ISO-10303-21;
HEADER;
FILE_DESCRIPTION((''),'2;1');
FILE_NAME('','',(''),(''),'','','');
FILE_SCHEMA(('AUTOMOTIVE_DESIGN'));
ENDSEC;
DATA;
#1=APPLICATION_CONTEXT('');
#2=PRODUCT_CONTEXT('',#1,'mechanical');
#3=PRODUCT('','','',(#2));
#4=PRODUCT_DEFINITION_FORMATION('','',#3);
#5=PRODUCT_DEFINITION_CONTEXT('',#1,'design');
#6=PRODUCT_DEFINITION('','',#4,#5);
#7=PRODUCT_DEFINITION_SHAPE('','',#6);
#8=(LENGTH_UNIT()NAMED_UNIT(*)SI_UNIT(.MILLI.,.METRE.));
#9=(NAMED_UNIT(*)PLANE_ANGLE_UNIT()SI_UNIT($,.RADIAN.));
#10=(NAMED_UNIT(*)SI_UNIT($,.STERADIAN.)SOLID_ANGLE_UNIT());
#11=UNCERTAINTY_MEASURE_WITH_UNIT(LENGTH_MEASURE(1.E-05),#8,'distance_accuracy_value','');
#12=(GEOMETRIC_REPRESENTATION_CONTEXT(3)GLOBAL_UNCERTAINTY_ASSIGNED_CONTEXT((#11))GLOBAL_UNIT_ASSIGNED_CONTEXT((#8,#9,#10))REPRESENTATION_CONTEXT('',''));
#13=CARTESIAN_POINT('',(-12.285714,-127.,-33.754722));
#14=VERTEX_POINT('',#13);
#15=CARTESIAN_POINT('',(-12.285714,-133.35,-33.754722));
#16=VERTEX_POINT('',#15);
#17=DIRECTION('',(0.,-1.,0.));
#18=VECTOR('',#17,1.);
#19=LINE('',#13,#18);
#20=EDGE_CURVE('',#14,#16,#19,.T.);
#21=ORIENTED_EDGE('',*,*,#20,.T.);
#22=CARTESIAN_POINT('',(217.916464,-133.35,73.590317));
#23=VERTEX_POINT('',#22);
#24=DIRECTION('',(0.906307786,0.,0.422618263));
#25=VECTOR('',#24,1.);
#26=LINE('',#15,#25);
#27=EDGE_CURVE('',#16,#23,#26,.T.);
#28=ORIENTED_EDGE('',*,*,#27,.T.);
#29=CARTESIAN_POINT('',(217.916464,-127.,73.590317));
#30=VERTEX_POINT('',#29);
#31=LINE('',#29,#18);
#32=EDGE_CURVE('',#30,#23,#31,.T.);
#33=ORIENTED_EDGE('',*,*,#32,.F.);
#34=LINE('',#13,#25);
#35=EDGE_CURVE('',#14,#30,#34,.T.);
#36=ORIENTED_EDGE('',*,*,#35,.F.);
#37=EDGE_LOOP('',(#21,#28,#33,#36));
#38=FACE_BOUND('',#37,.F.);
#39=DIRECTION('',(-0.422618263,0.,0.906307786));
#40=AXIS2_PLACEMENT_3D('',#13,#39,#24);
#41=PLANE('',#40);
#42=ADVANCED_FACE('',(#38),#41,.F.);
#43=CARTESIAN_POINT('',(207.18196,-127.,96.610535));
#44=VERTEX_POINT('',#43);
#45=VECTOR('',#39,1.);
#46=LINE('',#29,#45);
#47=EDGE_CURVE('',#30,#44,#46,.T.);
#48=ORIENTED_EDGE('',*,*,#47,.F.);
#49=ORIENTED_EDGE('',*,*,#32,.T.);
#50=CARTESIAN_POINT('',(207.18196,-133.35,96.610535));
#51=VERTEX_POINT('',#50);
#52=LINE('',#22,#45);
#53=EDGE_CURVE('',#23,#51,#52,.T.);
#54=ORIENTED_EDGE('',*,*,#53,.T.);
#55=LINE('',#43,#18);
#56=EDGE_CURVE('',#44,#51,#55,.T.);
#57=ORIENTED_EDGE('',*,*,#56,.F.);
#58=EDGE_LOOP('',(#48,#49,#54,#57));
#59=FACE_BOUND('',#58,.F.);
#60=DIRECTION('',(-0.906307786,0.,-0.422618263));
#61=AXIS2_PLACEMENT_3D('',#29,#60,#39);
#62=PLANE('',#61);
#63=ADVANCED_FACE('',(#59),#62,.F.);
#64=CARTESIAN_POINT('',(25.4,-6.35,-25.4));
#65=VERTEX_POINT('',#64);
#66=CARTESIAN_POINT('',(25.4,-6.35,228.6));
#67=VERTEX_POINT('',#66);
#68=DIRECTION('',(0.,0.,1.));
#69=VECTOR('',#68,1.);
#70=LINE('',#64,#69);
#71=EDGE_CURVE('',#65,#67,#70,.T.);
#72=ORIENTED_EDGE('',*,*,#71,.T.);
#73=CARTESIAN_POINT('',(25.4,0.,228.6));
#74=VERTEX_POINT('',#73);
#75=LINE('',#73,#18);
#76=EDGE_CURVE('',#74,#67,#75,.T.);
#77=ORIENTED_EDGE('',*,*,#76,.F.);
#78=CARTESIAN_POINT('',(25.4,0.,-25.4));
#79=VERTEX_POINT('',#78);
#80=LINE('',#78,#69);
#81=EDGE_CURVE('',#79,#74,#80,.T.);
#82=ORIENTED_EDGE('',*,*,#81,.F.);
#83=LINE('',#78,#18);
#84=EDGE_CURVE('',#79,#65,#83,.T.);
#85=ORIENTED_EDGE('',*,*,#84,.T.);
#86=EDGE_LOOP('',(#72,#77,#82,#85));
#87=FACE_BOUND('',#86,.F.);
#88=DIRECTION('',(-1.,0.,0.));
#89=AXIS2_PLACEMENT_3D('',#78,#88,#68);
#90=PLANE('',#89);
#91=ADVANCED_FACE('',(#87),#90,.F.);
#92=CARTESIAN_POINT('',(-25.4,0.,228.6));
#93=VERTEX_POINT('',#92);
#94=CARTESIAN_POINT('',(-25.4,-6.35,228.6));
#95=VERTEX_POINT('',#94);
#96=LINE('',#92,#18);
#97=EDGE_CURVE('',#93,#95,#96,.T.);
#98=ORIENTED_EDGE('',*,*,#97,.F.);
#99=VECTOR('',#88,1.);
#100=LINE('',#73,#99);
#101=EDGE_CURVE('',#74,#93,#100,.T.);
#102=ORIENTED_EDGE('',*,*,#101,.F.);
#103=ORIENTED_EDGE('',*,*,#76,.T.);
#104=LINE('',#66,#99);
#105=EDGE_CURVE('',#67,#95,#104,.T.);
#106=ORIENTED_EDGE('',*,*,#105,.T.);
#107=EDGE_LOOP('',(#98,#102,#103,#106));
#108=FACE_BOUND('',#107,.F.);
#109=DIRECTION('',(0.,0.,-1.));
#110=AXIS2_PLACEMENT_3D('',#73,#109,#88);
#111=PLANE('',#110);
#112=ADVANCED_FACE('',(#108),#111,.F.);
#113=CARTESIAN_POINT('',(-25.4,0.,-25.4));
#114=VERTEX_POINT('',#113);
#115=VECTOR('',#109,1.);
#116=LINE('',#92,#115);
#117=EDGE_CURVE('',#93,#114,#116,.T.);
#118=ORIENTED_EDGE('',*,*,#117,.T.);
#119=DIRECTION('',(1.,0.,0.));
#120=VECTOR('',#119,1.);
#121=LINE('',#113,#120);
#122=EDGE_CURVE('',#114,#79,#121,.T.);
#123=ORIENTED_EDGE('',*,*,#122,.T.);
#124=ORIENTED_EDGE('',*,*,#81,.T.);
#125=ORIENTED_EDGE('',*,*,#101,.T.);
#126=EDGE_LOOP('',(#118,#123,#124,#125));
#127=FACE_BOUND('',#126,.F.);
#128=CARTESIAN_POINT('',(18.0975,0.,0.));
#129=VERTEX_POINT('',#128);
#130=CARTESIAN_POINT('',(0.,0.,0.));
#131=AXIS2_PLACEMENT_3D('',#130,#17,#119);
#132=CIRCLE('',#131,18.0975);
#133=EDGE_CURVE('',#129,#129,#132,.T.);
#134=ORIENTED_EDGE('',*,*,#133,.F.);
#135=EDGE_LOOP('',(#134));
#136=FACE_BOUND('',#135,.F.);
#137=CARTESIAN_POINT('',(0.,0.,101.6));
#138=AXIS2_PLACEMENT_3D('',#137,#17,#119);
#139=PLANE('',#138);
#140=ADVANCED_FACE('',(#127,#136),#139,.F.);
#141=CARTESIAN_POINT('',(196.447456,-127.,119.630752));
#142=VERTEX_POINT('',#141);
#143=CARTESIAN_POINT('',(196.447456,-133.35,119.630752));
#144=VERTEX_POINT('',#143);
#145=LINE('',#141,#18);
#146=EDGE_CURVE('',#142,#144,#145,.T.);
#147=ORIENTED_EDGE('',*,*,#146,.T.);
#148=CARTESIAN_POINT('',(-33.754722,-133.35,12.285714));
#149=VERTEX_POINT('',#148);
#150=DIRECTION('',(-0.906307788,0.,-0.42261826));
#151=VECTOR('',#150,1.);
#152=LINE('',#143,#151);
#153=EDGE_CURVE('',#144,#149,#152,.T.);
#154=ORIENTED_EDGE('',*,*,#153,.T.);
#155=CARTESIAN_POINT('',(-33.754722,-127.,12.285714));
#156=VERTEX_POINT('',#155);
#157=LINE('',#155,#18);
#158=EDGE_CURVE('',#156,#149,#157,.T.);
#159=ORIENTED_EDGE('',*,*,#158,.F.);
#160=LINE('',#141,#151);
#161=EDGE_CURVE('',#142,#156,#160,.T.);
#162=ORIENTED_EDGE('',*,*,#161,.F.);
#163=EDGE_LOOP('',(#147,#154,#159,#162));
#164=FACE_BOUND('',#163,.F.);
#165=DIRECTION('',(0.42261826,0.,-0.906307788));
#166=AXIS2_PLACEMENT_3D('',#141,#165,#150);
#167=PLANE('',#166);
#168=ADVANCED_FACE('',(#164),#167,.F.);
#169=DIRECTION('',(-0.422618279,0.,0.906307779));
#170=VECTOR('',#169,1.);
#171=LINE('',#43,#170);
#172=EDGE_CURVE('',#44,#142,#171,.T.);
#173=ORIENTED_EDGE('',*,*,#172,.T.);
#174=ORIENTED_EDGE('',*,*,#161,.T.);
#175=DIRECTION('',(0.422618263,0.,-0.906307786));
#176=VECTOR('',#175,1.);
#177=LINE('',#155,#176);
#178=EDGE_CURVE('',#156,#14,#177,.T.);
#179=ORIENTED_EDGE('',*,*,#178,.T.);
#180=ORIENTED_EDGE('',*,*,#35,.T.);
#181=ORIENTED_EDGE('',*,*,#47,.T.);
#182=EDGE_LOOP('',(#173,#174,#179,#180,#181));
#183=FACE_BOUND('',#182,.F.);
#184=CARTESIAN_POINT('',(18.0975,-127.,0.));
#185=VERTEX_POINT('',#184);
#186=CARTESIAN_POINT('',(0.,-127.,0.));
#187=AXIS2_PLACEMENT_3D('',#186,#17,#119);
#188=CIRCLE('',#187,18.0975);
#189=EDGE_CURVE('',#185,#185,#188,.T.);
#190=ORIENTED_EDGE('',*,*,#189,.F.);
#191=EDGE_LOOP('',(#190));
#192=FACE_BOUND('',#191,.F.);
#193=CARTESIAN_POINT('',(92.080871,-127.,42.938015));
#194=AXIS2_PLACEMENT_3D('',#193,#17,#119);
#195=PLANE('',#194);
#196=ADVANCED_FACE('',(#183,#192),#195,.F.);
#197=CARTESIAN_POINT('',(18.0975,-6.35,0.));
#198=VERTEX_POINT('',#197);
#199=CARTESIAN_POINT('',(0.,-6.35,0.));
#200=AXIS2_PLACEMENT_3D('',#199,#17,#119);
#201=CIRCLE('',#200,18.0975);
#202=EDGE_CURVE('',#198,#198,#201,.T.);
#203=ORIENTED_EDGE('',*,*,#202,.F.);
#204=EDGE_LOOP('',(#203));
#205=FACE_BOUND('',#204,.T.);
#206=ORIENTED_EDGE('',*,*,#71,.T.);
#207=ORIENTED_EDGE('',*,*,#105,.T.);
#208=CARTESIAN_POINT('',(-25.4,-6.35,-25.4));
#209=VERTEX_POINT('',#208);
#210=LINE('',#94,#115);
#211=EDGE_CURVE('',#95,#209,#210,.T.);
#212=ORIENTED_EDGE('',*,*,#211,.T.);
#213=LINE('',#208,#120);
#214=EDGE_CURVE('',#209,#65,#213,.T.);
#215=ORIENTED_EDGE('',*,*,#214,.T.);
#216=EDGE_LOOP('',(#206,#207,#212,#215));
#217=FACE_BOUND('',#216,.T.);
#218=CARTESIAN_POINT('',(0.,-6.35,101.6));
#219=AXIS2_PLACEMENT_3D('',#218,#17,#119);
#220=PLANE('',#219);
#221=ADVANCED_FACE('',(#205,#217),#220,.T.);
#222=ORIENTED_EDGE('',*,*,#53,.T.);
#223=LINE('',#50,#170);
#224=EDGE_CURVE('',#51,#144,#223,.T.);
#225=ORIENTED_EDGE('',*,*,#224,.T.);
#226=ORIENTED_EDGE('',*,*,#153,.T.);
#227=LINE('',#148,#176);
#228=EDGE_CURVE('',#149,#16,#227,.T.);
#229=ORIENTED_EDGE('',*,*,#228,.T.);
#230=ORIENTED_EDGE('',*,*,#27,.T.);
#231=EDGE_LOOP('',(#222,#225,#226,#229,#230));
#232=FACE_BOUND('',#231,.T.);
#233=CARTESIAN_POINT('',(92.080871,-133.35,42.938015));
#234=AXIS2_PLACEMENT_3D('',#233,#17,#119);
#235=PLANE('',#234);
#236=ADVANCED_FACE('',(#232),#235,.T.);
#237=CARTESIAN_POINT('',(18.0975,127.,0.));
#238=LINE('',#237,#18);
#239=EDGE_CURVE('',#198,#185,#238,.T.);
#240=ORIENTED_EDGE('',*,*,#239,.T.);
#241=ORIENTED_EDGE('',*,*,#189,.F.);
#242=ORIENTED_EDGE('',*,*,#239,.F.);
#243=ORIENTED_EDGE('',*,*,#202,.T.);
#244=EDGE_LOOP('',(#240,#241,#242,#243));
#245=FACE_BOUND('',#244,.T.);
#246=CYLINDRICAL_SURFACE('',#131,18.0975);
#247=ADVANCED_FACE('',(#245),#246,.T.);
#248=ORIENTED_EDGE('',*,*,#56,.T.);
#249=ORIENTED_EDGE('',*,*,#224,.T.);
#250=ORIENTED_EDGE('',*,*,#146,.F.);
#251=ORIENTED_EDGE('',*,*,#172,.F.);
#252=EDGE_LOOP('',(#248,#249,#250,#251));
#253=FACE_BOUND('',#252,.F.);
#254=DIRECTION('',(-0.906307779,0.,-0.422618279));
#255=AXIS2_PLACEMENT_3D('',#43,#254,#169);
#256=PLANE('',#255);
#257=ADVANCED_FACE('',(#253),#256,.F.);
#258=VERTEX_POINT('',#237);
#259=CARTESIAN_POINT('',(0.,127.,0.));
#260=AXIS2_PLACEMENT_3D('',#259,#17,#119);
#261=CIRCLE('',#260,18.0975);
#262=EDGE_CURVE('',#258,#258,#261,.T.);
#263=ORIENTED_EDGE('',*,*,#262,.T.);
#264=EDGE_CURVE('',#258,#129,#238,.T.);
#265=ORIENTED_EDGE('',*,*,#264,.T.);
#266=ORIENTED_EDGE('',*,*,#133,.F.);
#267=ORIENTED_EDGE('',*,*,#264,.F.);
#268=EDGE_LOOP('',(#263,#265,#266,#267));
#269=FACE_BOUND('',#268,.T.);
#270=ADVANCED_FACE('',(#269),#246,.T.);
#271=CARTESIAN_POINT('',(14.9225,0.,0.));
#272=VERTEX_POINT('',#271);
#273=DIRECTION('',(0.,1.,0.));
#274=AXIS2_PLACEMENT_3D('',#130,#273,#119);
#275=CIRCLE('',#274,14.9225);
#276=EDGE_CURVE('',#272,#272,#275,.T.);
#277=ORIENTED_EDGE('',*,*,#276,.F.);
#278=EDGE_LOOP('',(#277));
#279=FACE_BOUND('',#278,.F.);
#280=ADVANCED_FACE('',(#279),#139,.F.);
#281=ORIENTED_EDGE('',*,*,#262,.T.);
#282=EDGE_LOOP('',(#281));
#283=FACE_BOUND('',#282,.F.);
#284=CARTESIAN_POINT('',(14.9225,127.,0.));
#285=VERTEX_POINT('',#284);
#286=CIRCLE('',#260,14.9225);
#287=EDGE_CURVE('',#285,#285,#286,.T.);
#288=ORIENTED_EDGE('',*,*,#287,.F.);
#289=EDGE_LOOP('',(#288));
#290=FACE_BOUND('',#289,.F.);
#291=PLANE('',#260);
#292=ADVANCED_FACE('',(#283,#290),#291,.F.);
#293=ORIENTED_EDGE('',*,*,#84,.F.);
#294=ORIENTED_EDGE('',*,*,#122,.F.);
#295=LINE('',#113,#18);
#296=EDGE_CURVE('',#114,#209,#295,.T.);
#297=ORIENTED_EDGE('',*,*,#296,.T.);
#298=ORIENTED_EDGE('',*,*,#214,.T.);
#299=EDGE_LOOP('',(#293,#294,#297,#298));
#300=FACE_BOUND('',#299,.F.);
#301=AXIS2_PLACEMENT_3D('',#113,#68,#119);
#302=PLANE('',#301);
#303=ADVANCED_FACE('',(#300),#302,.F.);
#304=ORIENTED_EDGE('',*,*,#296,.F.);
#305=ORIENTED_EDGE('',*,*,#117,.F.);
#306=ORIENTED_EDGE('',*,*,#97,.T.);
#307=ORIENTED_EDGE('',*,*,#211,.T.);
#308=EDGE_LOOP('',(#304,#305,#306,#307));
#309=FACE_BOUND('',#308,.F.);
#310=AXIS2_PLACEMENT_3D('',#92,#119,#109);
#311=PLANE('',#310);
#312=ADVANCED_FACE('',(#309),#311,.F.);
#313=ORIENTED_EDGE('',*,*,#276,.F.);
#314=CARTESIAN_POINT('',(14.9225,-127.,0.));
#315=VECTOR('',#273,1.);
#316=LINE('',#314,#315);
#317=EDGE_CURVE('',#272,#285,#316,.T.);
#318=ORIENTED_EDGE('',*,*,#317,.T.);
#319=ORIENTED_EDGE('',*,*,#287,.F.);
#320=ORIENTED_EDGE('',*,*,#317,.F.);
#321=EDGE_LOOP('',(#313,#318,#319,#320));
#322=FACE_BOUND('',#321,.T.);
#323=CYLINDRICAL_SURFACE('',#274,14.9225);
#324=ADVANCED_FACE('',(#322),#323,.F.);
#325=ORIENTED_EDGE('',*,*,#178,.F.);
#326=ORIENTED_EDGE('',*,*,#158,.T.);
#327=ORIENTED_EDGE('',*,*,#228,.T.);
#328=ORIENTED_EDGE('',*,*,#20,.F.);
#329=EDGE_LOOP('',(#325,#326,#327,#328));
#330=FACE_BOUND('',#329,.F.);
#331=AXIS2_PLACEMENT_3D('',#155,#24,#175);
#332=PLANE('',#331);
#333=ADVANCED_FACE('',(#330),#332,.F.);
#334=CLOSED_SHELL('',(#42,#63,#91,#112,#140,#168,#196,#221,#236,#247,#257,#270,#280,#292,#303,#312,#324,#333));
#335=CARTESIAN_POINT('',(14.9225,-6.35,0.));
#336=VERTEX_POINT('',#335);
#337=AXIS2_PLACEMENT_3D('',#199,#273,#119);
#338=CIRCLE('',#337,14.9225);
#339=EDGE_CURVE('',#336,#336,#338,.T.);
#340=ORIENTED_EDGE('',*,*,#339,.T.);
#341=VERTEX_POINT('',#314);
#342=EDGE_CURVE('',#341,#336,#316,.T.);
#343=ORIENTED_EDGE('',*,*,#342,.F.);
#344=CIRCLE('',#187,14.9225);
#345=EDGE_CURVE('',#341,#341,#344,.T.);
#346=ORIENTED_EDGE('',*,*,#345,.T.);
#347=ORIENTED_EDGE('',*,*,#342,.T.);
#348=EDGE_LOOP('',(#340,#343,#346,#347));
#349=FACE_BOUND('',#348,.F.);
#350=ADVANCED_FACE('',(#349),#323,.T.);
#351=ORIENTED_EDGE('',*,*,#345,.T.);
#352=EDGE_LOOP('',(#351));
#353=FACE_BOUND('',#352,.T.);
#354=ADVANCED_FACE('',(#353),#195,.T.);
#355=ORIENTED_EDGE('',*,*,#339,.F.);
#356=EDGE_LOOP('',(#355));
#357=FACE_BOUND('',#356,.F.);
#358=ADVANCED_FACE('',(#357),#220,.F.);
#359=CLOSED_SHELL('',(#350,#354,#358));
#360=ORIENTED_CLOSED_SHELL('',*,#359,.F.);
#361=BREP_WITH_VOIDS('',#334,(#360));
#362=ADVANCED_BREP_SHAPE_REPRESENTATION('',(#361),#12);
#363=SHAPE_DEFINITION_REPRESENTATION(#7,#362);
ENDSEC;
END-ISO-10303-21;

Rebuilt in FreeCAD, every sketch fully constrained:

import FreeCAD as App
import Part
import Sketcher

V = App.Vector
Q = App.Units.Quantity


def add_polygon(sketch, points):
    """Adds a closed chain of lines whose ends are joined by coincident constraints."""
    first, n = sketch.GeometryCount, len(points)
    for a, b in zip(points, points[1:] + points[:1]):
        sketch.addGeometry(Part.LineSegment(App.Vector(*a, 0), App.Vector(*b, 0)), False)
    for i in range(n):
        sketch.addConstraint(Sketcher.Constraint("Coincident", first + i, 2, first + (i + 1) % n, 1))

doc = App.newDocument("Part")
params = doc.addObject("Spreadsheet::Sheet", "Params")
for row, (alias, value) in enumerate([
    ("sketch1_diameter", "1.425 in"),
    ("sketch1_diameter2", "1.175 in"),
    ("pad1_length", "10 in"),
    ("sketch2_width", "2 in"),
    ("sketch2_height", "10 in"),
    ("pad2_length", "0.25 in"),
    ("sketch3_length", "1 in"),
    ("sketch3_length2", "10 in"),
    ("pad3_length", "0.25 in"),
], start=1):
    params.set(f"A{row}", alias)
    params.set(f"B{row}", "=" + value)
    params.setAlias(f"B{row}", alias)

body = doc.addObject("PartDesign::Body", "Body")

# Sketch on XZ plane
sketch1 = body.newObject("Sketcher::SketchObject", "Sketch")
sketch1.AttachmentSupport = (doc.getObject("XZ_Plane"), [""])
sketch1.MapMode = "FlatFace"
sketch1.addGeometry([
    Part.Circle(V(0, 0, 0), V(0, 0, 1), 18),
    Part.Circle(V(0, 0, 0), V(0, 0, 1), 15),
], False)
sketch1.addConstraint([
    Sketcher.Constraint("Coincident", 0, 3, -1, 1),
    Sketcher.Constraint("Coincident", 1, 3, -1, 1),
    Sketcher.Constraint("Diameter", 0, Q("1.425 in")),
    Sketcher.Constraint("Diameter", 1, Q("1.175 in")),
])
sketch1.setExpression("Constraints[2]", "Params.sketch1_diameter")
sketch1.setExpression("Constraints[3]", "Params.sketch1_diameter2")
pad1 = body.newObject("PartDesign::Pad", "Pad")
pad1.Profile = sketch1
pad1.setExpression("Length", "Params.pad1_length")
pad1.Midplane = True

# Sketch on XZ plane
sketch2 = body.newObject("Sketcher::SketchObject", "Sketch001")
sketch2.AttachmentSupport = (doc.getObject("XZ_Plane"), [""])
sketch2.MapMode = "FlatFace"
add_polygon(sketch2, [(25, -25), (25, 229), (-25, 229), (-25, -25)])  # lines 0-3
sketch2.addConstraint([
    Sketcher.Constraint("Vertical", 0),
    Sketcher.Constraint("Horizontal", 1),
    Sketcher.Constraint("Vertical", 2),
    Sketcher.Constraint("Horizontal", 3),
    Sketcher.Constraint("DistanceX", 1, 2, 1, 1, Q("2 in")),
    Sketcher.Constraint("DistanceY", 0, 1, 0, 2, Q("10 in")),
    Sketcher.Constraint("DistanceX", -1, 1, 0, 2, Q("1 in")),
    Sketcher.Constraint("DistanceY", -1, 1, 0, 2, Q("9 in")),
])
sketch2.setExpression("Constraints[8]", "Params.sketch2_width")
sketch2.setExpression("Constraints[9]", "Params.sketch2_height")
pad2 = body.newObject("PartDesign::Pad", "Pad001")
pad2.Profile = sketch2
pad2.setExpression("Length", "Params.pad2_length")

# Sketch on XZ plane
sketch3 = body.newObject("Sketcher::SketchObject", "Sketch002")
sketch3.AttachmentSupport = (doc.getObject("XZ_Plane"), [""])
sketch3.MapMode = "FlatFace"
sketch3.AttachmentOffset = App.Placement(V(0, 0, 5 * 25.4), App.Rotation())
add_polygon(sketch3, [(218, 74), (207, 97), (196, 120), (-34, 12), (-12, -34)])  # lines 0-4
sketch3.addConstraint([
    Sketcher.Constraint("Parallel", 0, 1),
    Sketcher.Constraint("Perpendicular", 1, 2),
    Sketcher.Constraint("Perpendicular", 2, 3),
    Sketcher.Constraint("Perpendicular", 3, 4),
    Sketcher.Constraint("Equal", 0, 1),
    Sketcher.Constraint("Distance", 0, Q("1 in")),
    Sketcher.Constraint("Distance", 2, Q("10 in")),
    Sketcher.Constraint("Angle", 0, Q("115 deg")),
    Sketcher.Constraint("DistanceX", -1, 1, 0, 2, 207.18196),
    Sketcher.Constraint("DistanceY", -1, 1, 1, 2, 119.630752),
])
sketch3.setExpression("Constraints[10]", "Params.sketch3_length")
sketch3.setExpression("Constraints[11]", "Params.sketch3_length2")
pad3 = body.newObject("PartDesign::Pad", "Pad002")
pad3.Profile = sketch3
pad3.setExpression("Length", "Params.pad3_length")

doc.recompute()
